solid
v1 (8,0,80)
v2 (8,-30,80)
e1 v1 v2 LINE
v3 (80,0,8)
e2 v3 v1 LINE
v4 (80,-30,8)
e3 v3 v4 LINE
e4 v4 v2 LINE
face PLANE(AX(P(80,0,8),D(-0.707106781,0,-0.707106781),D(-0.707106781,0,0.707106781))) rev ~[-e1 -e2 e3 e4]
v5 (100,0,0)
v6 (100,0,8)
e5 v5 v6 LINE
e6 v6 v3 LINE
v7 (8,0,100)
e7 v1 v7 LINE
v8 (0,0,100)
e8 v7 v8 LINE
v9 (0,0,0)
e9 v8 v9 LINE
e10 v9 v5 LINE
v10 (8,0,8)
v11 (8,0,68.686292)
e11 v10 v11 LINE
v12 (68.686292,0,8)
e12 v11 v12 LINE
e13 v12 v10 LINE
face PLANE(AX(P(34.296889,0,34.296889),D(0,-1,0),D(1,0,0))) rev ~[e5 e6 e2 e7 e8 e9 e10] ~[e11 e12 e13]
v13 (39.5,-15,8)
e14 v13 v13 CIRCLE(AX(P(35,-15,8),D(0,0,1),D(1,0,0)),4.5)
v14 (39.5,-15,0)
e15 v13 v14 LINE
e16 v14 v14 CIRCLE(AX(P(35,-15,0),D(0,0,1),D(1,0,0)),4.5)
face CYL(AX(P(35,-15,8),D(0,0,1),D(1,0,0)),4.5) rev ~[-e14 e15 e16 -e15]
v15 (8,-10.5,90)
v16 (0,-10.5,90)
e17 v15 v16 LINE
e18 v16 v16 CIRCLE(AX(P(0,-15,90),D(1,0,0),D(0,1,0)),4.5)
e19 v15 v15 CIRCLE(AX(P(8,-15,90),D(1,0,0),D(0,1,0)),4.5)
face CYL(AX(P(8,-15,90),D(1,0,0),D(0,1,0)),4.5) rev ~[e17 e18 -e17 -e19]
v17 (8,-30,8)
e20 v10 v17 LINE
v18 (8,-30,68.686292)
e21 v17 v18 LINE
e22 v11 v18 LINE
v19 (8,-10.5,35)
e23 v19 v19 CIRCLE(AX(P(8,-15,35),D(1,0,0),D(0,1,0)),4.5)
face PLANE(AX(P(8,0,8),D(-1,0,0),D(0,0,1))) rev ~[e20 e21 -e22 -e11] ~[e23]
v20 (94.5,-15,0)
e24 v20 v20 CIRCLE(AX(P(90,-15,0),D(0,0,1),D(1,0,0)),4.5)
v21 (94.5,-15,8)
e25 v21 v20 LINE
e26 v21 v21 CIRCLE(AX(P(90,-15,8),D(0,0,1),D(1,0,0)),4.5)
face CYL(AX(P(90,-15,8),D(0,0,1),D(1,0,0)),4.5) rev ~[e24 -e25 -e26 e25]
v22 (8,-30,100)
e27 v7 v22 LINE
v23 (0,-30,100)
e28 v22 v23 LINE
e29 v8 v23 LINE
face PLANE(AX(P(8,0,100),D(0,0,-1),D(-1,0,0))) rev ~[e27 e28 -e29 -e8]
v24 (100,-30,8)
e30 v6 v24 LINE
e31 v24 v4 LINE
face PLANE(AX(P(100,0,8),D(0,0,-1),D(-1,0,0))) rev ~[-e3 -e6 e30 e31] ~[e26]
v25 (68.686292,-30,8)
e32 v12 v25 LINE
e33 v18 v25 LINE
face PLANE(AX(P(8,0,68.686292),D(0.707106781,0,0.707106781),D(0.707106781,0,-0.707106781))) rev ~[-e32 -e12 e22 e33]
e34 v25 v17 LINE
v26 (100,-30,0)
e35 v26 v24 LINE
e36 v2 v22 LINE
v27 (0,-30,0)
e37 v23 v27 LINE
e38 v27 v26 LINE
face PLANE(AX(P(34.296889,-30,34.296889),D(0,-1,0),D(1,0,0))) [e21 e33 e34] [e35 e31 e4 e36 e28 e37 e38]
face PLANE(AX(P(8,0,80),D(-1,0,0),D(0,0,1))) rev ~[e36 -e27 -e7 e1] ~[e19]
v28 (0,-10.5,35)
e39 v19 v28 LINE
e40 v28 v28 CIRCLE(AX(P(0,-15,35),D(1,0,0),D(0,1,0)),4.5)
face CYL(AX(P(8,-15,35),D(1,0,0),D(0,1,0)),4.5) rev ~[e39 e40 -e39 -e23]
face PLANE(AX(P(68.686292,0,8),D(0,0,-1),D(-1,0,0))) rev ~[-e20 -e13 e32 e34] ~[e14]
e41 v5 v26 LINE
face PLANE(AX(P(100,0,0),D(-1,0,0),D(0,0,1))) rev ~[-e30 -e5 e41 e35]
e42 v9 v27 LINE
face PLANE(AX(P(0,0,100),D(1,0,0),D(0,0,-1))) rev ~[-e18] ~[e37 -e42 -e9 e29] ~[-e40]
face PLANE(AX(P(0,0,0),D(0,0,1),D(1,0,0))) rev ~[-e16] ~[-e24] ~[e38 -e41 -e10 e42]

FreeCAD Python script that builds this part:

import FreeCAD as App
import Part
import Sketcher

V = App.Vector
Q = App.Units.Quantity

doc = App.newDocument("Part")
params = doc.addObject("Spreadsheet::Sheet", "Params")
for row, (alias, value) in enumerate([
    ("sketch1_width", "100 mm"),
    ("sketch1_width2", "20 mm"),
    ("sketch1_width3", "8 mm"),
    ("pad1_length", "30 mm"),
    ("sketch2_diameter", "9 mm"),
    ("sketch3_diameter", "9 mm"),
], start=1):
    params.set(f"A{row}", alias)
    params.set(f"B{row}", "=" + value)
    params.setAlias(f"B{row}", alias)

body = doc.addObject("PartDesign::Body", "Body")

sketch1 = doc.addObject("Sketcher::SketchObject", "Sketch")
body.addObject(sketch1)
sketch1.AttachmentSupport = (doc.XZ_Plane, [""])
sketch1.MapMode = "FlatFace"
sketch1.addGeometry([
    Part.LineSegment(V(0, 100, 0), V(0, 0, 0)),
    Part.LineSegment(V(0, 0, 0), V(100, 0, 0)),
    Part.LineSegment(V(100, 0, 0), V(100, 8, 0)),
    Part.LineSegment(V(100, 8, 0), V(80, 8, 0)),
    Part.LineSegment(V(80, 8, 0), V(8, 80, 0)),
    Part.LineSegment(V(8, 80, 0), V(8, 100, 0)),
    Part.LineSegment(V(8, 100, 0), V(0, 100, 0)),
    Part.LineSegment(V(69, 8, 0), V(8, 8, 0)),
    Part.LineSegment(V(8, 8, 0), V(8, 69, 0)),
    Part.LineSegment(V(8, 69, 0), V(69, 8, 0)),
], False)
sketch1.addConstraint([
    Sketcher.Constraint("Coincident", 0, 2, 1, 1),
    Sketcher.Constraint("Coincident", 1, 2, 2, 1),
    Sketcher.Constraint("Coincident", 2, 2, 3, 1),
    Sketcher.Constraint("Coincident", 3, 2, 4, 1),
    Sketcher.Constraint("Coincident", 4, 2, 5, 1),
    Sketcher.Constraint("Coincident", 5, 2, 6, 1),
    Sketcher.Constraint("Coincident", 6, 2, 0, 1),
    Sketcher.Constraint("Coincident", 7, 2, 8, 1),
    Sketcher.Constraint("Coincident", 8, 2, 9, 1),
    Sketcher.Constraint("Coincident", 9, 2, 7, 1),
    Sketcher.Constraint("Vertical", 0),
    Sketcher.Constraint("Horizontal", 1),
    Sketcher.Constraint("Vertical", 2),
    Sketcher.Constraint("Horizontal", 3),
    Sketcher.Constraint("Vertical", 5),
    Sketcher.Constraint("Horizontal", 6),
    Sketcher.Constraint("Horizontal", 7),
    Sketcher.Constraint("Vertical", 8),
    Sketcher.Constraint("Coincident", 0, 2, -1, 1),
    Sketcher.Constraint("Parallel", 4, 9),
    Sketcher.Constraint("Horizontal", 3, 2, 7, 2),
    Sketcher.Constraint("Vertical", 5, 2, 7, 2),
    Sketcher.Constraint("Equal", 1, 0),
    Sketcher.Constraint("Equal", 6, 2),
    Sketcher.Constraint("Equal", 3, 5),
    Sketcher.Constraint("DistanceX", 1, 1, 1, 2, Q("100 mm")),
    Sketcher.Constraint("DistanceX", 3, 2, 3, 1, Q("20 mm")),
    Sketcher.Constraint("DistanceX", 6, 2, 6, 1, Q("8 mm")),
    Sketcher.Constraint("DistanceX", 7, 2, 7, 1, Q("60.686292 mm")),
])
sketch1.setExpression("Constraints[25]", "Params.sketch1_width")
sketch1.setExpression("Constraints[26]", "Params.sketch1_width2")
sketch1.setExpression("Constraints[27]", "Params.sketch1_width3")
pad1 = doc.addObject("PartDesign::Pad", "Pad")
body.addObject(pad1)
pad1.Profile = sketch1
pad1.setExpression("Length", "Params.pad1_length")

sketch2 = doc.addObject("Sketcher::SketchObject", "Sketch001")
body.addObject(sketch2)
sketch2.AttachmentSupport = (doc.XY_Plane, [""])
sketch2.MapMode = "FlatFace"
sketch2.AttachmentOffset = App.Placement(V(0, 0, 8), App.Rotation())
sketch2.addGeometry([
    Part.Circle(V(90, -15, 0), V(0, 0, 1), 4.5),
    Part.Circle(V(35, -15, 0), V(0, 0, 1), 4.5),
], False)
sketch2.addConstraint([
    Sketcher.Constraint("Equal", 0, 1),
    Sketcher.Constraint("Horizontal", 0, 3, 1, 3),
    Sketcher.Constraint("Diameter", 0, Q("9 mm")),
    Sketcher.Constraint("DistanceX", -1, 1, 0, 3, Q("90 mm")),
    Sketcher.Constraint("DistanceY", 0, 3, -1, 1, Q("15 mm")),
    Sketcher.Constraint("DistanceX", -1, 1, 1, 3, Q("35 mm")),
])
sketch2.setExpression("Constraints[2]", "Params.sketch2_diameter")
pocket1 = doc.addObject("PartDesign::Pocket", "Pocket")
body.addObject(pocket1)
pocket1.Profile = sketch2
pocket1.Type = "ThroughAll"

sketch3 = doc.addObject("Sketcher::SketchObject", "Sketch002")
body.addObject(sketch3)
sketch3.AttachmentSupport = (doc.YZ_Plane, [""])
sketch3.MapMode = "FlatFace"
sketch3.AttachmentOffset = App.Placement(V(0, 0, 8), App.Rotation())
sketch3.addGeometry([
    Part.Circle(V(-15, 35, 0), V(0, 0, 1), 4.5),
    Part.Circle(V(-15, 90, 0), V(0, 0, 1), 4.5),
], False)
sketch3.addConstraint([
    Sketcher.Constraint("Equal", 0, 1),
    Sketcher.Constraint("Vertical", 0, 3, 1, 3),
    Sketcher.Constraint("Diameter", 0, Q("9 mm")),
    Sketcher.Constraint("DistanceX", 0, 3, -1, 1, Q("15 mm")),
    Sketcher.Constraint("DistanceY", -1, 1, 0, 3, Q("35 mm")),
    Sketcher.Constraint("DistanceY", -1, 1, 1, 3, Q("90 mm")),
])
sketch3.setExpression("Constraints[2]", "Params.sketch3_diameter")
pocket2 = doc.addObject("PartDesign::Pocket", "Pocket001")
body.addObject(pocket2)
pocket2.Profile = sketch3
pocket2.Type = "ThroughAll"

doc.recompute()
